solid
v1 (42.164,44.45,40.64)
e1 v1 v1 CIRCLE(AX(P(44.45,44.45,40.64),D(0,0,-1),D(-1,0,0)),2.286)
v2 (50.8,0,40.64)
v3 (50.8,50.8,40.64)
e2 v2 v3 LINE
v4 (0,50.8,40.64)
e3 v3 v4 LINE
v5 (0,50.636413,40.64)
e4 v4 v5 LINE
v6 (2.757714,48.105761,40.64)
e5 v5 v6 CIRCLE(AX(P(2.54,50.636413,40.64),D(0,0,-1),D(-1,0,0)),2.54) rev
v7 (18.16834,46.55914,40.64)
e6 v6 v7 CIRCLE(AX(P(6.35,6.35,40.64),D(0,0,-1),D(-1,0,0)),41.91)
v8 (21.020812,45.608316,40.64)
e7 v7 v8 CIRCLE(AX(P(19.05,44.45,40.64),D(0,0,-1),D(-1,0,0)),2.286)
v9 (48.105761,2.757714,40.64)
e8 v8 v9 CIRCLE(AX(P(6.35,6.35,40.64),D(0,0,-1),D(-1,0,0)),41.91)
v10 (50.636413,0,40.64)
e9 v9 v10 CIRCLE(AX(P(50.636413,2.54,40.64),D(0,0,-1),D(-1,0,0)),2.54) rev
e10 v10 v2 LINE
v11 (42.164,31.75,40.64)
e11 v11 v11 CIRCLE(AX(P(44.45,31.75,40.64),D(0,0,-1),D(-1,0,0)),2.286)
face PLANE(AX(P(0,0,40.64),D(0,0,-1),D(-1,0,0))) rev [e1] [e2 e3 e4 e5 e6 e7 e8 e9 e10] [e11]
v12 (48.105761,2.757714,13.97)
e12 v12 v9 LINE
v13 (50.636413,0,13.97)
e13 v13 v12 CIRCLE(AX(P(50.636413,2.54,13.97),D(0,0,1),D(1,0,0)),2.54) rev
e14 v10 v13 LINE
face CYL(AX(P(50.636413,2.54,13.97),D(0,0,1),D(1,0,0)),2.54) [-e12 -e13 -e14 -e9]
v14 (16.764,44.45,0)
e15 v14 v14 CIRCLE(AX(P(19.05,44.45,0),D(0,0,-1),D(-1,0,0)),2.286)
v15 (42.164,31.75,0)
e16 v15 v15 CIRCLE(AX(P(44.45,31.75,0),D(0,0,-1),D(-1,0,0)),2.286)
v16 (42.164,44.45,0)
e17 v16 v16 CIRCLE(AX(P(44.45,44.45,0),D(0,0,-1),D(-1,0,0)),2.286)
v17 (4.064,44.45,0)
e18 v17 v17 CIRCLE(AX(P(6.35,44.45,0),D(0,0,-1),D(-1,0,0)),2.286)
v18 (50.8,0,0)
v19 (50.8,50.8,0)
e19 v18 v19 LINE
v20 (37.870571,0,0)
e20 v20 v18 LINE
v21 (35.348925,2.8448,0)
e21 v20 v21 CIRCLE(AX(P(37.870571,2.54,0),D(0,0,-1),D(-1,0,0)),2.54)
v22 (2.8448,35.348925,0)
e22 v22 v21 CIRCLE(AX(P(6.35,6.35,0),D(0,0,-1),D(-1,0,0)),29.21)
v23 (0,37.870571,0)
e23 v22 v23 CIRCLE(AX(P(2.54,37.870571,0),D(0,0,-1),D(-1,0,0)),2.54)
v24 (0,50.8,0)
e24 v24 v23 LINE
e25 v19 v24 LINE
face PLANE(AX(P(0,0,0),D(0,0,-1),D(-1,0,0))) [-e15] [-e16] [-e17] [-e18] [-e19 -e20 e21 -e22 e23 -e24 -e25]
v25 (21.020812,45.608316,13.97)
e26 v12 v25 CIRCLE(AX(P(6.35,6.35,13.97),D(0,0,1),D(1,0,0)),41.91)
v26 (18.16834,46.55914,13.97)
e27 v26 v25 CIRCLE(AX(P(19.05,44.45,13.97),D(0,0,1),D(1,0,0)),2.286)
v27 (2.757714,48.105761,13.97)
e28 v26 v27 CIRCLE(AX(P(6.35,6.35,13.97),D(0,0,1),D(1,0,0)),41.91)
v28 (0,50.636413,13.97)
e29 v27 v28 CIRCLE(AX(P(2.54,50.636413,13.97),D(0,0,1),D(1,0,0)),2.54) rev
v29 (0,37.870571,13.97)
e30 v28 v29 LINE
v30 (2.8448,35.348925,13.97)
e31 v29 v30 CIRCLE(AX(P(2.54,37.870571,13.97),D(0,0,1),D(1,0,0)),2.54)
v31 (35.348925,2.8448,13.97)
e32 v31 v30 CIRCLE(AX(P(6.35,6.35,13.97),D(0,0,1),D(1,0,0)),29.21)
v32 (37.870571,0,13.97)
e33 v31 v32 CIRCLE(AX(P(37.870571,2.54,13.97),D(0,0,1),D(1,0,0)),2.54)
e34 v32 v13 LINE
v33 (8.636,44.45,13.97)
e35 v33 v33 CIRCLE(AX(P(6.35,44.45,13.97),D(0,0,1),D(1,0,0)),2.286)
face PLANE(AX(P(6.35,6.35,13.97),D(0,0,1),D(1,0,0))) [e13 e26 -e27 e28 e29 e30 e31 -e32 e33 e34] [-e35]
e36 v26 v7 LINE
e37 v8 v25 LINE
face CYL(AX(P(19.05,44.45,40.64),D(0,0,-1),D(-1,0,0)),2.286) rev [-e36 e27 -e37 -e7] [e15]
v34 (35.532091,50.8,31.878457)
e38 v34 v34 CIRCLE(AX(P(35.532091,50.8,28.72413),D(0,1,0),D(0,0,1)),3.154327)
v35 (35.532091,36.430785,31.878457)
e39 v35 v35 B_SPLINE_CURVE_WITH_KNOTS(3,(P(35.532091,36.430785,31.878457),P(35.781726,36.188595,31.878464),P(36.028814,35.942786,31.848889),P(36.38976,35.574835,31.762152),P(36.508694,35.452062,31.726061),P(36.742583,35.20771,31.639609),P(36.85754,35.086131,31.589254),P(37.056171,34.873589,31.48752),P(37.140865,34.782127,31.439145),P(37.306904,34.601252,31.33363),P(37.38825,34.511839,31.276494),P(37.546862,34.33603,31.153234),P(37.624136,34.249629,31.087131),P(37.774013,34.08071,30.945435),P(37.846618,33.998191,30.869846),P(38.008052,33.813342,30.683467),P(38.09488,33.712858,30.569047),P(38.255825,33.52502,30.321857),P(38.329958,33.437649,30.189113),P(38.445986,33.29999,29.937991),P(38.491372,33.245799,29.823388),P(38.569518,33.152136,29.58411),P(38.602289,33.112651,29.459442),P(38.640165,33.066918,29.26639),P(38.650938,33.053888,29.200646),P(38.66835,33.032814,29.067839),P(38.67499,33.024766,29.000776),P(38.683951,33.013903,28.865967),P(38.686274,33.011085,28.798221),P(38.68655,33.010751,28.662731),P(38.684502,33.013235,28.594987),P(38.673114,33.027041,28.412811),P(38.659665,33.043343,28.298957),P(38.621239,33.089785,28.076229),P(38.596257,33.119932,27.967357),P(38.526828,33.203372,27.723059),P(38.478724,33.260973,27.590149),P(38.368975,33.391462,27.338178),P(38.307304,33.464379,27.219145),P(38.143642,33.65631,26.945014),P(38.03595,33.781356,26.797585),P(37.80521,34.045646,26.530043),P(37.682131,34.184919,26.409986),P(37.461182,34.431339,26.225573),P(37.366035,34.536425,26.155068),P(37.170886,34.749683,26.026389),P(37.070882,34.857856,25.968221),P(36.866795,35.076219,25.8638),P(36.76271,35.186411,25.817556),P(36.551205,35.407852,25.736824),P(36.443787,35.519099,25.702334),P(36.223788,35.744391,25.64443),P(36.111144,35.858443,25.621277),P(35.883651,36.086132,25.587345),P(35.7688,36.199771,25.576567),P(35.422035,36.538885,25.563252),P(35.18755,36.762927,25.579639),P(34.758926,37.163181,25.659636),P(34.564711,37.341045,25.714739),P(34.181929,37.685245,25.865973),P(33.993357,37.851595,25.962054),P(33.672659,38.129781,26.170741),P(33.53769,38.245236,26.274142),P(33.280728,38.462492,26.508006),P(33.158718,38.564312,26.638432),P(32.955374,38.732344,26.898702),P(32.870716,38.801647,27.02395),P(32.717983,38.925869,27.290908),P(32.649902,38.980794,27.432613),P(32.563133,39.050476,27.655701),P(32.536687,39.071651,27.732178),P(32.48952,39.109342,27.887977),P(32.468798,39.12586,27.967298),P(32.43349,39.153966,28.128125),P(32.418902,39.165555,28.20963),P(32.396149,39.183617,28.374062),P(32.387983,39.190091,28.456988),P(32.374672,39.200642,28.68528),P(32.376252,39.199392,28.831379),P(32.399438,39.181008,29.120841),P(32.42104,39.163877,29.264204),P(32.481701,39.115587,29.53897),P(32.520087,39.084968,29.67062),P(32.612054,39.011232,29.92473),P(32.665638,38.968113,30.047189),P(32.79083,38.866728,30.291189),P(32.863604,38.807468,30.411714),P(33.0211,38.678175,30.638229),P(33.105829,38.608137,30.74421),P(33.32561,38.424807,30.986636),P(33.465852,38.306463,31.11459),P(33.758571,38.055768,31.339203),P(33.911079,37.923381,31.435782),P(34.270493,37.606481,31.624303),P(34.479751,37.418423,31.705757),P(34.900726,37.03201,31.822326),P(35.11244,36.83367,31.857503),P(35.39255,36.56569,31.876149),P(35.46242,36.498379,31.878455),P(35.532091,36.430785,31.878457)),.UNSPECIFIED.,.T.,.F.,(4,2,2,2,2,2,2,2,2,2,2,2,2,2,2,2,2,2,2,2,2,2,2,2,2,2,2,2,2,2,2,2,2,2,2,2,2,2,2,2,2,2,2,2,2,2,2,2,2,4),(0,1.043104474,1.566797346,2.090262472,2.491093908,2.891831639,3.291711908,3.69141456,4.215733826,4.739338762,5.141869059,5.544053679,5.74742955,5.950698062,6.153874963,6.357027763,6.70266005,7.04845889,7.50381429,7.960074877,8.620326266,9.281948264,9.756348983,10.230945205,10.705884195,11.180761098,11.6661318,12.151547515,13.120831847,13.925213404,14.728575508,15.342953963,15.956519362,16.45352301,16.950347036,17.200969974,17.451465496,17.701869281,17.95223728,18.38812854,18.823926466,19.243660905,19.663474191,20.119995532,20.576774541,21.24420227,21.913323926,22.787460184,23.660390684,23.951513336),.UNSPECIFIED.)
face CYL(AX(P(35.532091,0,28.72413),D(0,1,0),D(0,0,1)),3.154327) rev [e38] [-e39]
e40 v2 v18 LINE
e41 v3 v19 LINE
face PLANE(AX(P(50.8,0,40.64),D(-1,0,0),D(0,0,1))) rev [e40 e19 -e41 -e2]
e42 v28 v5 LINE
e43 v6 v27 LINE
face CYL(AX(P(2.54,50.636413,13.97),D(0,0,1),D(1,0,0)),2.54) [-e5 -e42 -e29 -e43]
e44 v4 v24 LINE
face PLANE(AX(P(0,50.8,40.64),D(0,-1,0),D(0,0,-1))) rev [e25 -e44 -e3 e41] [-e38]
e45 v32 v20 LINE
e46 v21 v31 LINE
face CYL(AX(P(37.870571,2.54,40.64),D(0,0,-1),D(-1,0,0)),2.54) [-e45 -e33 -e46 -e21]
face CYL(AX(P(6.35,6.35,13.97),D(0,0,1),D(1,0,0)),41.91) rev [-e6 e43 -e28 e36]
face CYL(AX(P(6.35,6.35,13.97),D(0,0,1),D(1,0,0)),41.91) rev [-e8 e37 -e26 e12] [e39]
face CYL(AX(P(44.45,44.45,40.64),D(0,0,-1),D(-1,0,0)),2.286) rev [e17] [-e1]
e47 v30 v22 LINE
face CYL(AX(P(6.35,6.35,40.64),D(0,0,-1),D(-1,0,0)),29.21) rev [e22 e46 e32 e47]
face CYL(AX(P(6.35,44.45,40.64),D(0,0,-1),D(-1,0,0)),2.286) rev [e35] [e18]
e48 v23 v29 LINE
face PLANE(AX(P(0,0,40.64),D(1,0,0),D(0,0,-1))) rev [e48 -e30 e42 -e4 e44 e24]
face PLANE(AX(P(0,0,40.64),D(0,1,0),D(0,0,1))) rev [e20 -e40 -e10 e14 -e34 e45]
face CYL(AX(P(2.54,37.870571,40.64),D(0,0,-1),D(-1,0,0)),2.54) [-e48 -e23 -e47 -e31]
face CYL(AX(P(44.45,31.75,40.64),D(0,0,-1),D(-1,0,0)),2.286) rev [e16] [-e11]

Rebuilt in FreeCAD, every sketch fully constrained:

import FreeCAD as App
import Part
import Sketcher

V = App.Vector
Q = App.Units.Quantity


def edges_at(feature, points):
    """Names of the edges that pass closest to the given points."""
    edges = feature.Shape.Edges
    near = lambda p: min(range(len(edges)), key=lambda i: edges[i].distToShape(Part.Vertex(*p))[0])
    return sorted({f"Edge{near(p) + 1}" for p in points})

doc = App.newDocument("Part")
body = doc.addObject("PartDesign::Body", "Body")

# Sketch on XY plane
sketch1 = body.newObject("Sketcher::SketchObject", "Sketch")
sketch1.AttachmentSupport = (doc.getObject("XY_Plane"), [""])
sketch1.MapMode = "FlatFace"
sketch1.addGeometry([
    Part.LineSegment(V(0, 50.8, 0), V(0, 0, 0)),
    Part.LineSegment(V(0, 0, 0), V(50.8, 0, 0)),
    Part.LineSegment(V(50.8, 0, 0), V(50.8, 50.8, 0)),
    Part.LineSegment(V(50.8, 50.8, 0), V(0, 50.8, 0)),
], False)
sketch1.addConstraint([
    Sketcher.Constraint("Coincident", 0, 2, 1, 1),
    Sketcher.Constraint("Coincident", 1, 2, 2, 1),
    Sketcher.Constraint("Coincident", 2, 2, 3, 1),
    Sketcher.Constraint("Coincident", 3, 2, 0, 1),
    Sketcher.Constraint("Vertical", 0),
    Sketcher.Constraint("Horizontal", 1),
    Sketcher.Constraint("Vertical", 2),
    Sketcher.Constraint("Horizontal", 3),
    Sketcher.Constraint("Coincident", 0, 2, -1, 1),
    Sketcher.Constraint("Equal", 3, 0),
    Sketcher.Constraint("DistanceX", 1, 1, 1, 2, Q("2 in")),
])
pad1 = body.newObject("PartDesign::Pad", "Pad")
pad1.Profile = sketch1
pad1.Length = Q("1.6 in")

# Sketch on XY plane
sketch2 = body.newObject("Sketcher::SketchObject", "Sketch001")
sketch2.AttachmentSupport = (doc.getObject("XY_Plane"), [""])
sketch2.MapMode = "FlatFace"
sketch2.AttachmentOffset = App.Placement(V(0, 0, 1.6 * 25.4), App.Rotation())
sketch2.addGeometry(Part.Circle(V(6.35, 6.35, 0), V(0, 0, 1), 41.91), False)
sketch2.addConstraint([
    Sketcher.Constraint("Diameter", 0, Q("3.3 in")),
    Sketcher.Constraint("DistanceX", -1, 1, 0, 3, Q("0.25 in")),
    Sketcher.Constraint("DistanceY", -1, 1, 0, 3, Q("0.25 in")),
])
pocket1 = body.newObject("PartDesign::Pocket", "Pocket")
pocket1.Profile = sketch2
pocket1.Length = Q("1.05 in")

# Sketch on XY plane
sketch3 = body.newObject("Sketcher::SketchObject", "Sketch002")
sketch3.AttachmentSupport = (doc.getObject("XY_Plane"), [""])
sketch3.MapMode = "FlatFace"
sketch3.addGeometry(Part.Circle(V(6.35, 6.35, 0), V(0, 0, 1), 29.21), False)
sketch3.addConstraint([
    Sketcher.Constraint("Diameter", 0, Q("2.3 in")),
    Sketcher.Constraint("DistanceX", -1, 1, 0, 3, Q("0.25 in")),
    Sketcher.Constraint("DistanceY", -1, 1, 0, 3, Q("0.25 in")),
])
pocket2 = body.newObject("PartDesign::Pocket", "Pocket001")
pocket2.Profile = sketch3
pocket2.Type = "ThroughAll"
pocket2.Reversed = True

# Sketch on XY plane
sketch4 = body.newObject("Sketcher::SketchObject", "Sketch003")
sketch4.AttachmentSupport = (doc.getObject("XY_Plane"), [""])
sketch4.MapMode = "FlatFace"
sketch4.addGeometry([
    Part.Circle(V(6.35, 44.45, 0), V(0, 0, 1), 2.286),
    Part.Circle(V(19.05, 44.45, 0), V(0, 0, 1), 2.286),
    Part.Circle(V(44.45, 44.45, 0), V(0, 0, 1), 2.286),
    Part.Circle(V(44.45, 31.75, 0), V(0, 0, 1), 2.286),
], False)
sketch4.addConstraint([
    Sketcher.Constraint("Equal", 0, 1),
    Sketcher.Constraint("Equal", 1, 2),
    Sketcher.Constraint("Equal", 2, 3),
    Sketcher.Constraint("Horizontal", 0, 3, 1, 3),
    Sketcher.Constraint("Horizontal", 1, 3, 2, 3),
    Sketcher.Constraint("Vertical", 2, 3, 3, 3),
    Sketcher.Constraint("Diameter", 0, Q("0.18 in")),
    Sketcher.Constraint("DistanceX", 1, 3, 2, 3, Q("1 in")),
    Sketcher.Constraint("DistanceX", 0, 3, 1, 3, Q("0.5 in")),
    Sketcher.Constraint("DistanceY", 3, 3, 2, 3, Q("0.5 in")),
    Sketcher.Constraint("DistanceX", -1, 1, 0, 3, Q("0.25 in")),
    Sketcher.Constraint("DistanceY", -1, 1, 0, 3, Q("1.75 in")),
])
pocket3 = body.newObject("PartDesign::Pocket", "Pocket002")
pocket3.Profile = sketch4
pocket3.Type = "ThroughAll"
pocket3.Reversed = True
doc.recompute()

fillet = body.newObject("PartDesign::Fillet", "Fillet")
fillet.Base = (pocket3, edges_at(pocket3, [
    (0, 47.776, 27.305),
    (47.776, 0, 27.305),
    (0, 34.861, 6.985),
    (34.861, 0, 6.985),
]))
fillet.Radius = Q("0.1 in")

# Sketch on XZ plane
sketch5 = body.newObject("Sketcher::SketchObject", "Sketch004")
sketch5.AttachmentSupport = (doc.getObject("XZ_Plane"), [""])
sketch5.MapMode = "FlatFace"
sketch5.AttachmentOffset = App.Placement(V(0, 0, -2 * 25.4), App.Rotation())
sketch5.addGeometry(Part.Circle(V(35.532091, 28.72413, 0), V(0, 0, 1), 3.154327), False)
sketch5.addConstraint([
    Sketcher.Constraint("Diameter", 0, Q("6.308654 mm")),
    Sketcher.Constraint("DistanceX", -1, 1, 0, 3, Q("35.532091 mm")),
    Sketcher.Constraint("DistanceY", -1, 1, 0, 3, Q("28.72413 mm")),
])
pocket4 = body.newObject("PartDesign::Pocket", "Pocket003")
pocket4.Profile = sketch5
pocket4.Type = "ThroughAll"
pocket4.Reversed = True

doc.recompute()
